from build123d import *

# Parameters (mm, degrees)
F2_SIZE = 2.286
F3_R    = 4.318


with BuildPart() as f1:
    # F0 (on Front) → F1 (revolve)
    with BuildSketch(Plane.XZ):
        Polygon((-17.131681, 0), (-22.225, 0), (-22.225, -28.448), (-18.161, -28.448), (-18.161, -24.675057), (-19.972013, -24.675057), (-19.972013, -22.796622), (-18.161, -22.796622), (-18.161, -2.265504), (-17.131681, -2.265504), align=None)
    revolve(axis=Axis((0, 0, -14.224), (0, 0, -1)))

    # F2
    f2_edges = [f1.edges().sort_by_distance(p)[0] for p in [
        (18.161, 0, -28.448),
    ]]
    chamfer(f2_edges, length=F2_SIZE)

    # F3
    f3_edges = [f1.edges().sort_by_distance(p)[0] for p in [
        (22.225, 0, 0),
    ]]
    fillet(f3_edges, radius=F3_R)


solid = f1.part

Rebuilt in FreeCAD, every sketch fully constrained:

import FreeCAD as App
import Part
import Sketcher
from FreeCAD import Vector
Q = App.Units.Quantity


def edges_at(feature, points):
    """Names of the edges that pass closest to the given points."""
    edges = feature.Shape.Edges
    near = lambda p: min(range(len(edges)), key=lambda i: edges[i].distToShape(Part.Vertex(*p))[0])
    return sorted({f"Edge{near(p) + 1}" for p in points})


def add_polygon(sketch, points):
    """Adds a closed chain of lines whose ends are joined by coincident constraints."""
    first, n = sketch.GeometryCount, len(points)
    for a, b in zip(points, points[1:] + points[:1]):
        sketch.addGeometry(Part.LineSegment(App.Vector(*a, 0), App.Vector(*b, 0)), False)
    for i in range(n):
        sketch.addConstraint(Sketcher.Constraint("Coincident", first + i, 2, first + (i + 1) % n, 1))

doc = App.newDocument("Part")
body = doc.addObject("PartDesign::Body", "Body")

# Sketch on XZ plane
sketch1 = body.newObject("Sketcher::SketchObject", "Sketch")
sketch1.AttachmentSupport = (doc.getObject("XZ_Plane"), [""])
sketch1.MapMode = "FlatFace"
add_polygon(sketch1, [(-17.1, 0), (-22.2, 0), (-22.2, -28.4), (-18.2, -28.4), (-18.2, -24.7), (-20, -24.7), (-20, -22.8), (-18.2, -22.8), (-18.2, -2.3), (-17.1, -2.3)])  # lines 0-9
sketch1.addConstraint([
    Sketcher.Constraint("Horizontal", 0),
    Sketcher.Constraint("Vertical", 1),
    Sketcher.Constraint("Horizontal", 2),
    Sketcher.Constraint("Vertical", 3),
    Sketcher.Constraint("Horizontal", 4),
    Sketcher.Constraint("Vertical", 5),
    Sketcher.Constraint("Horizontal", 6),
    Sketcher.Constraint("Vertical", 7),
    Sketcher.Constraint("Horizontal", 8),
    Sketcher.Constraint("Vertical", 9),
    Sketcher.Constraint("PointOnObject", 0, 2, -1),
    Sketcher.Constraint("Vertical", 3, 2, 6, 2),
    Sketcher.Constraint("DistanceX", 2, 1, 2, 2, Q("0.16 in")),
    Sketcher.Constraint("DistanceY", 1, 2, 1, 1, Q("1.12 in")),
    Sketcher.Constraint("DistanceX", 0, 2, -1, 1, Q("0.875 in")),
    Sketcher.Constraint("DistanceX", 0, 2, 0, 1, 5.093319),
    Sketcher.Constraint("DistanceX", 4, 2, 4, 1, 1.811013),
    Sketcher.Constraint("DistanceY", 3, 1, 3, 2, 3.772943),
    Sketcher.Constraint("DistanceY", 5, 1, 5, 2, 1.878435),
    Sketcher.Constraint("DistanceY", 7, 1, 7, 2, 20.531118),
])
revolution = body.newObject("PartDesign::Revolution", "Revolution")
revolution.Profile = sketch1
revolution.ReferenceAxis = (sketch1, ["V_Axis"])
revolution.Angle = 360
doc.recompute()

chamfer = body.newObject("PartDesign::Chamfer", "Chamfer")
chamfer.Base = (revolution, edges_at(revolution, [(18.161, 0, -28.448)]))
chamfer.Size = Q("0.09 in")
doc.recompute()

fillet = body.newObject("PartDesign::Fillet", "Fillet")
fillet.Base = (chamfer, edges_at(chamfer, [(22.225, 0, 0)]))
fillet.Radius = Q("0.17 in")

doc.recompute()
